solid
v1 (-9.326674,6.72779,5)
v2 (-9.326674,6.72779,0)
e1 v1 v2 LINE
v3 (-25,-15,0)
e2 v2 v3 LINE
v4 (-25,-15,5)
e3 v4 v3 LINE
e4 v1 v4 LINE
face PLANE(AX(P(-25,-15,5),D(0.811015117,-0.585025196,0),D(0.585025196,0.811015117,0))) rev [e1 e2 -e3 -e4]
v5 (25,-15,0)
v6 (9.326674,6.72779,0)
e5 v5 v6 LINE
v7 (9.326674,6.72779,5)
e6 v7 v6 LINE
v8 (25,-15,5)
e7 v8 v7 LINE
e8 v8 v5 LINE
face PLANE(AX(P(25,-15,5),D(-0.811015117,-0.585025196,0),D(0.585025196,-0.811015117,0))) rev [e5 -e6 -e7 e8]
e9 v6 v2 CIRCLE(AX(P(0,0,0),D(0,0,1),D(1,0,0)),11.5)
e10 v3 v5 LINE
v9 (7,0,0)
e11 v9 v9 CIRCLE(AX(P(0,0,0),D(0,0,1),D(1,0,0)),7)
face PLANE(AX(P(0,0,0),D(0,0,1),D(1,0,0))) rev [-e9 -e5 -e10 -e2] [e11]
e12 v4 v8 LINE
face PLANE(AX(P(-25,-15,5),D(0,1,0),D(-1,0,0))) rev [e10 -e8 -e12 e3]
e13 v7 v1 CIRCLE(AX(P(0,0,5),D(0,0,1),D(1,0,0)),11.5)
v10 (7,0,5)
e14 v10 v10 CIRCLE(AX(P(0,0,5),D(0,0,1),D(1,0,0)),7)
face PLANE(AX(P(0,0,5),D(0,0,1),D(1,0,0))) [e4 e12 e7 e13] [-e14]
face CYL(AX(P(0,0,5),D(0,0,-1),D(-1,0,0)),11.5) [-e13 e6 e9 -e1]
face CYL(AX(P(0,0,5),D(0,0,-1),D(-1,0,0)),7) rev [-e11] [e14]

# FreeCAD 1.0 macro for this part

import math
import FreeCAD as App
import Part
import Sketcher
from FreeCAD import Vector

doc = App.newDocument("Part")
params = doc.addObject("Spreadsheet::Sheet", "Params")
for row, (alias, value) in enumerate([
    ("sketch1_diameter", "14 mm"),
    ("sketch1_radius", "11.5 mm"),
    ("sketch1_width", "50 mm"),
    ("pad1_length", "5 mm"),
], start=1):
    params.set(f"A{row}", alias)
    params.set(f"B{row}", "=" + value)
    params.setAlias(f"B{row}", alias)

body = doc.addObject("PartDesign::Body", "Body")

# Sketch on XY plane
sketch1 = doc.addObject("Sketcher::SketchObject", "Sketch")
body.addObject(sketch1)
sketch1.AttachmentSupport = (doc.XY_Plane, [""])
sketch1.MapMode = "FlatFace"
sketch1.addGeometry([
    Part.LineSegment(Vector(-25, -15, 0), Vector(25, -15, 0)),  # 0
    Part.LineSegment(Vector(25, -15, 0), Vector(9, 7, 0)),  # 1
    Part.ArcOfCircle(Part.Circle(Vector(0, 0, 0), Vector(0, 0, 1), 11), math.radians(36), math.radians(144)),  # 2
    Part.LineSegment(Vector(-9, 7, 0), Vector(-25, -15, 0)),  # 3
    Part.Circle(Vector(0, 0, 0), Vector(0, 0, 1), 7),  # 4
], False)
sketch1.addConstraint([
    Sketcher.Constraint("Coincident", 0, 2, 1, 1),
    Sketcher.Constraint("Tangent", 1, 2, 2, 1),
    Sketcher.Constraint("Tangent", 2, 2, 3, 1),
    Sketcher.Constraint("Coincident", 3, 2, 0, 1),
    Sketcher.Constraint("Horizontal", 0),
    Sketcher.Constraint("Coincident", 2, 3, -1, 1),
    Sketcher.Constraint("Coincident", 4, 3, -1, 1),
    Sketcher.Constraint("Horizontal", 1, 2, 2, 2),
    Sketcher.Constraint("Diameter", 4, 14.0),
    Sketcher.Constraint("Radius", 2, 11.5),
    Sketcher.Constraint("DistanceX", 0, 1, 0, 2, 50.0),
    Sketcher.Constraint("DistanceY", 0, 2, -1, 1, 15.0),
])
sketch1.setExpression("Constraints[8]", "Params.sketch1_diameter")
sketch1.setExpression("Constraints[9]", "Params.sketch1_radius")
sketch1.setExpression("Constraints[10]", "Params.sketch1_width")
pad1 = doc.addObject("PartDesign::Pad", "Pad")
body.addObject(pad1)
pad1.Profile = sketch1
pad1.setExpression("Length", "Params.pad1_length")

doc.recompute()
